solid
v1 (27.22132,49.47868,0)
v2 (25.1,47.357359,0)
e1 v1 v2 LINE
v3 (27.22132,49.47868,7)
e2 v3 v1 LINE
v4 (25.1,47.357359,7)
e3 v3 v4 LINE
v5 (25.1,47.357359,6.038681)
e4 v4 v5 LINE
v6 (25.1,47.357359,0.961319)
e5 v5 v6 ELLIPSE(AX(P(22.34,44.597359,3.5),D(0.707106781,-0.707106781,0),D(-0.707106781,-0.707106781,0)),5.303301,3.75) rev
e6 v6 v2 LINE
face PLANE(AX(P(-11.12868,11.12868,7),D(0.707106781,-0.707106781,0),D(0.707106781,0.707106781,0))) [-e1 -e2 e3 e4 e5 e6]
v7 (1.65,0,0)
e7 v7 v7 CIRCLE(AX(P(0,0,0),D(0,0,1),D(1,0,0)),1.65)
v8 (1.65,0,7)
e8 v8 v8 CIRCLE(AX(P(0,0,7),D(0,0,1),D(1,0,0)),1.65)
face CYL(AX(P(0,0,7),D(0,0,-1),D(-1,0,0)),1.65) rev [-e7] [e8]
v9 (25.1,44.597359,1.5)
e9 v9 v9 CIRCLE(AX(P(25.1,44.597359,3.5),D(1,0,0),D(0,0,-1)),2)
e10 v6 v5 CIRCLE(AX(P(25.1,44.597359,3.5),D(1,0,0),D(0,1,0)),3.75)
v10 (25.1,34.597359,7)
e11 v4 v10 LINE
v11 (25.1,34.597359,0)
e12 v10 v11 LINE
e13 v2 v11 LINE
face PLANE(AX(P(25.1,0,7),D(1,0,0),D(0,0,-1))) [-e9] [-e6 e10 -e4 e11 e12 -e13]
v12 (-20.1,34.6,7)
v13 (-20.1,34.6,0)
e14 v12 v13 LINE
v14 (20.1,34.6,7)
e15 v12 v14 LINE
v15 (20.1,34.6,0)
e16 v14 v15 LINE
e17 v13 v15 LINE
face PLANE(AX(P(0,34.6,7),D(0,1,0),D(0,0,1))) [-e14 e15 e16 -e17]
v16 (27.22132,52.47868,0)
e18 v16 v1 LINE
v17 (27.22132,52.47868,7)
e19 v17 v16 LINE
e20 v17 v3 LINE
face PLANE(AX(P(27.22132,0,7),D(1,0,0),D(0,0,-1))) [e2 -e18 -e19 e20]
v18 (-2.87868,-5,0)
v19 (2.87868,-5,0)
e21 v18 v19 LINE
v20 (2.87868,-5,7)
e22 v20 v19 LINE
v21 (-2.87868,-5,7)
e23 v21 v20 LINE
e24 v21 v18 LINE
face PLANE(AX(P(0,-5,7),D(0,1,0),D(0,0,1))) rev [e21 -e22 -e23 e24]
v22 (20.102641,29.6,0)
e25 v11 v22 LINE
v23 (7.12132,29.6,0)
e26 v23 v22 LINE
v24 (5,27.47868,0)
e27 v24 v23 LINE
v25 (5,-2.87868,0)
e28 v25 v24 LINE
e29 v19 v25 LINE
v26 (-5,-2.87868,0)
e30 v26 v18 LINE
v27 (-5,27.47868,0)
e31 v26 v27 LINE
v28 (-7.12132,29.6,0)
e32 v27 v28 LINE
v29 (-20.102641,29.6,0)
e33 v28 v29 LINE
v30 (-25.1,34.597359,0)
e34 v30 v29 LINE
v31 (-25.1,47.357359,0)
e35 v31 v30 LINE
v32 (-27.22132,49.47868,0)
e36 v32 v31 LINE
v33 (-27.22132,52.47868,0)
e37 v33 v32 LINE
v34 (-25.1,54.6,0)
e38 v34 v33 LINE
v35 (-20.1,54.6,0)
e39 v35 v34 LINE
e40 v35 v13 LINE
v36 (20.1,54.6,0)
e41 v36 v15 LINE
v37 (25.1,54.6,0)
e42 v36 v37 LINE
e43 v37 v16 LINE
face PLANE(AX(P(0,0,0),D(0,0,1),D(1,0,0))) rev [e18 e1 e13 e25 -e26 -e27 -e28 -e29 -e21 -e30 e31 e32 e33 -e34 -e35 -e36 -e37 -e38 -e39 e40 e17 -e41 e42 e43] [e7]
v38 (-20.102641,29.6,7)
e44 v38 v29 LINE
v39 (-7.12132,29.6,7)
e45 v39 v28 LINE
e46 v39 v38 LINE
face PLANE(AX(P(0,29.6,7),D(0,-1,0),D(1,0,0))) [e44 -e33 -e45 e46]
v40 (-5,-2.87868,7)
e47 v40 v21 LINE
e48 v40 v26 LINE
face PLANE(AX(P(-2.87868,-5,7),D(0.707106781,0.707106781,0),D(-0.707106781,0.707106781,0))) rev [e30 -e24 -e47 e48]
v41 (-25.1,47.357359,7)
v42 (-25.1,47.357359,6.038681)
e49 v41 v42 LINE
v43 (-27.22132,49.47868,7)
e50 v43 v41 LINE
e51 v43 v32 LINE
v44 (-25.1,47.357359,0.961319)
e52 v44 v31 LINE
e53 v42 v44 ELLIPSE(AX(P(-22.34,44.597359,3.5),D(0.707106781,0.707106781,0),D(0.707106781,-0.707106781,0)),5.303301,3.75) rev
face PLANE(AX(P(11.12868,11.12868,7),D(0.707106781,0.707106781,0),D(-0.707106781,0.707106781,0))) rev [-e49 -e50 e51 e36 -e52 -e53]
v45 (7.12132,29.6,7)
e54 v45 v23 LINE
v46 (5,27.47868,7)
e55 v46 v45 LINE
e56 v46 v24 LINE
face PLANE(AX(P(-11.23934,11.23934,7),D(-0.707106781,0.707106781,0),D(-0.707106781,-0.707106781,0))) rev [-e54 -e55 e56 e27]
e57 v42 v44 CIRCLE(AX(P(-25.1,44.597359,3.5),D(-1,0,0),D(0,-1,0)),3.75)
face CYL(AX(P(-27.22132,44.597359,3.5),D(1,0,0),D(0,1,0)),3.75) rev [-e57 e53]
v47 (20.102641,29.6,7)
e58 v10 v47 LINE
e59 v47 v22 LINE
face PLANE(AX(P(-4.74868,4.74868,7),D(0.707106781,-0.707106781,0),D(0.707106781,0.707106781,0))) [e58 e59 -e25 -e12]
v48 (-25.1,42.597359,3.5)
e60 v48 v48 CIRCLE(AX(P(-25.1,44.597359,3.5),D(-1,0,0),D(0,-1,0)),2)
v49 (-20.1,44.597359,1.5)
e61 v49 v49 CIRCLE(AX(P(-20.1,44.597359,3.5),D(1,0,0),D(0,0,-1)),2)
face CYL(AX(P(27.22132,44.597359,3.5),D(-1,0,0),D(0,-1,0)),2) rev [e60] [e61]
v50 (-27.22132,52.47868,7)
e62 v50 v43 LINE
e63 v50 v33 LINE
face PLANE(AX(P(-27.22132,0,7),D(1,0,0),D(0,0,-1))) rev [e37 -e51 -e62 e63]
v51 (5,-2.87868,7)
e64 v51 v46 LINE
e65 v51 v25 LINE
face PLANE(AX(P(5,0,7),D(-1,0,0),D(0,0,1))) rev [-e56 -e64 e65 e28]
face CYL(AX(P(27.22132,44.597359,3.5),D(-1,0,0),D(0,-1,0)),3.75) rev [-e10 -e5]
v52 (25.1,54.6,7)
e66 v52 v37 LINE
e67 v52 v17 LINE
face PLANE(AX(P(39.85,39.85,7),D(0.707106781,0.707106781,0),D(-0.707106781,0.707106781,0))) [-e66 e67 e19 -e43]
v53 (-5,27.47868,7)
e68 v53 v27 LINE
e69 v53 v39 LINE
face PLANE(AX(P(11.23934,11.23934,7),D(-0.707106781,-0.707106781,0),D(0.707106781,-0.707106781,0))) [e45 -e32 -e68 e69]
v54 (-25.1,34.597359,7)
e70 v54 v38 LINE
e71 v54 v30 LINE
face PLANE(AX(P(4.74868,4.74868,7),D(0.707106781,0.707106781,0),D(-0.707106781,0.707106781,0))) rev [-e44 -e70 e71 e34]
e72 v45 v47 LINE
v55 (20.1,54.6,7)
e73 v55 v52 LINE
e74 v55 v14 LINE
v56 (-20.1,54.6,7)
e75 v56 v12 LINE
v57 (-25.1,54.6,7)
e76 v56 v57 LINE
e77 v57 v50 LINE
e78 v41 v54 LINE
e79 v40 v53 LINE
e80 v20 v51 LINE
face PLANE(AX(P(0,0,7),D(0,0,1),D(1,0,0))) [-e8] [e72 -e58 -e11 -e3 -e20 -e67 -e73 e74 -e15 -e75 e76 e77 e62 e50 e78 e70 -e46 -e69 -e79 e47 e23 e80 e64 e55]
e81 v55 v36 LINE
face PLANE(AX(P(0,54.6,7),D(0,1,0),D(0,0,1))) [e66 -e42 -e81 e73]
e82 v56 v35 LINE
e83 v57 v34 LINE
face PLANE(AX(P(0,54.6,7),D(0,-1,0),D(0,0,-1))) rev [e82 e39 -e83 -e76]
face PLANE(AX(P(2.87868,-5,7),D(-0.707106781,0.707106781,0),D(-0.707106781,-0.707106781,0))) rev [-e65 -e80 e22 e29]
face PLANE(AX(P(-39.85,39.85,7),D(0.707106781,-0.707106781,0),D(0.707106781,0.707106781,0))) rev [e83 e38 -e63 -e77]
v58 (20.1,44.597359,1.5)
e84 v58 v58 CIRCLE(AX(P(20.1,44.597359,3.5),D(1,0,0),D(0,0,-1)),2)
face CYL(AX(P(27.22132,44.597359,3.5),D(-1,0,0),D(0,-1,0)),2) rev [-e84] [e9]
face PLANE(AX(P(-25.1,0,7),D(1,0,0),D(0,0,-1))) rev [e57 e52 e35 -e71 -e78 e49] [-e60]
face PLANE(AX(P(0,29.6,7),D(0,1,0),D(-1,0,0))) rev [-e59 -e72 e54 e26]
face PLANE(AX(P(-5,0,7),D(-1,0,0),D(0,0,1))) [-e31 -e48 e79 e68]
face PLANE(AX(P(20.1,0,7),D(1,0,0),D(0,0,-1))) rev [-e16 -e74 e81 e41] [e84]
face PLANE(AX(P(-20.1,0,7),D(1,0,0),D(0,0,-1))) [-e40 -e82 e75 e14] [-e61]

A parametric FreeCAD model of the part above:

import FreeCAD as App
import Part
import Sketcher
from FreeCAD import Vector

doc = App.newDocument("Part")
params = doc.addObject("Spreadsheet::Sheet", "Params")
for row, (alias, value) in enumerate([
    ("sketch1_diameter", "3.3 mm"),
    ("sketch1_width", "10 mm"),
    ("sketch1_width2", "5 mm"),
    ("sketch1_height", "3 mm"),
    ("sketch1_height2", "20 mm"),
    ("pad1_length", "7 mm"),
    ("sketch2_length", "3 mm"),
    ("sketch3_diameter", "4 mm"),
    ("sketch4_diameter", "7.5 mm"),
    ("sketch5_diameter", "7.5 mm"),
], start=1):
    params.set(f"A{row}", alias)
    params.set(f"B{row}", "=" + value)
    params.setAlias(f"B{row}", alias)

body = doc.addObject("PartDesign::Body", "Body")

sketch1 = body.newObject("Sketcher::SketchObject", "Sketch")
sketch1.AttachmentSupport = (doc.getObject("XY_Plane"), [""])
sketch1.MapMode = "FlatFace"
sketch1.addGeometry([
    Part.LineSegment(Vector(-5, 27.5, 0), Vector(-5, -5, 0)),
    Part.LineSegment(Vector(-5, -5, 0), Vector(5, -5, 0)),
    Part.LineSegment(Vector(5, -5, 0), Vector(5, 27.5, 0)),
    Part.LineSegment(Vector(5, 27.5, 0), Vector(7.1, 29.6, 0)),
    Part.LineSegment(Vector(7.1, 29.6, 0), Vector(20.1, 29.6, 0)),
    Part.LineSegment(Vector(20.1, 29.6, 0), Vector(25.1, 34.6, 0)),
    Part.LineSegment(Vector(25.1, 34.6, 0), Vector(25.1, 47.4, 0)),
    Part.LineSegment(Vector(25.1, 47.4, 0), Vector(27.2, 49.5, 0)),
    Part.LineSegment(Vector(27.2, 49.5, 0), Vector(27.2, 52.5, 0)),
    Part.LineSegment(Vector(27.2, 52.5, 0), Vector(25.1, 54.6, 0)),
    Part.LineSegment(Vector(25.1, 54.6, 0), Vector(20.1, 54.6, 0)),
    Part.LineSegment(Vector(20.1, 54.6, 0), Vector(20.1, 34.6, 0)),
    Part.LineSegment(Vector(20.1, 34.6, 0), Vector(-20.1, 34.6, 0)),
    Part.LineSegment(Vector(-20.1, 34.6, 0), Vector(-20.1, 54.6, 0)),
    Part.LineSegment(Vector(-20.1, 54.6, 0), Vector(-25.1, 54.6, 0)),
    Part.LineSegment(Vector(-25.1, 54.6, 0), Vector(-27.2, 52.5, 0)),
    Part.LineSegment(Vector(-27.2, 52.5, 0), Vector(-27.2, 49.5, 0)),
    Part.LineSegment(Vector(-27.2, 49.5, 0), Vector(-25.1, 47.4, 0)),
    Part.LineSegment(Vector(-25.1, 47.4, 0), Vector(-25.1, 34.6, 0)),
    Part.LineSegment(Vector(-25.1, 34.6, 0), Vector(-20.1, 29.6, 0)),
    Part.LineSegment(Vector(-20.1, 29.6, 0), Vector(-7.1, 29.6, 0)),
    Part.LineSegment(Vector(-7.1, 29.6, 0), Vector(-5, 27.5, 0)),
    Part.Circle(Vector(0, 0, 0), Vector(0, 0, 1), 1.6),
], False)
sketch1.addConstraint([
    Sketcher.Constraint("Coincident", 0, 2, 1, 1),
    Sketcher.Constraint("Coincident", 1, 2, 2, 1),
    Sketcher.Constraint("Coincident", 2, 2, 3, 1),
    Sketcher.Constraint("Coincident", 3, 2, 4, 1),
    Sketcher.Constraint("Coincident", 4, 2, 5, 1),
    Sketcher.Constraint("Coincident", 5, 2, 6, 1),
    Sketcher.Constraint("Coincident", 6, 2, 7, 1),
    Sketcher.Constraint("Coincident", 7, 2, 8, 1),
    Sketcher.Constraint("Coincident", 8, 2, 9, 1),
    Sketcher.Constraint("Coincident", 9, 2, 10, 1),
    Sketcher.Constraint("Coincident", 10, 2, 11, 1),
    Sketcher.Constraint("Coincident", 11, 2, 12, 1),
    Sketcher.Constraint("Coincident", 12, 2, 13, 1),
    Sketcher.Constraint("Coincident", 13, 2, 14, 1),
    Sketcher.Constraint("Coincident", 14, 2, 15, 1),
    Sketcher.Constraint("Coincident", 15, 2, 16, 1),
    Sketcher.Constraint("Coincident", 16, 2, 17, 1),
    Sketcher.Constraint("Coincident", 17, 2, 18, 1),
    Sketcher.Constraint("Coincident", 18, 2, 19, 1),
    Sketcher.Constraint("Coincident", 19, 2, 20, 1),
    Sketcher.Constraint("Coincident", 20, 2, 21, 1),
    Sketcher.Constraint("Coincident", 21, 2, 0, 1),
    Sketcher.Constraint("Vertical", 0),
    Sketcher.Constraint("Horizontal", 1),
    Sketcher.Constraint("Vertical", 2),
    Sketcher.Constraint("Horizontal", 4),
    Sketcher.Constraint("Vertical", 6),
    Sketcher.Constraint("Vertical", 8),
    Sketcher.Constraint("Horizontal", 10),
    Sketcher.Constraint("Vertical", 11),
    Sketcher.Constraint("Horizontal", 12),
    Sketcher.Constraint("Vertical", 13),
    Sketcher.Constraint("Horizontal", 14),
    Sketcher.Constraint("Vertical", 16),
    Sketcher.Constraint("Vertical", 18),
    Sketcher.Constraint("Horizontal", 20),
    Sketcher.Constraint("Coincident", 22, 3, -1, 1),
    Sketcher.Constraint("Symmetric", 10, 2, 13, 2, -2),
    Sketcher.Constraint("Symmetric", 8, 2, 15, 2, -2),
    Sketcher.Constraint("Symmetric", 6, 2, 17, 2, -2),
    Sketcher.Constraint("Symmetric", 4, 2, 19, 2, -2),
    Sketcher.Constraint("Symmetric", 2, 2, 21, 2, -2),
    Sketcher.Constraint("Parallel", 3, 5),
    Sketcher.Constraint("Parallel", 5, 7),
    Sketcher.Constraint("Perpendicular", 7, 9),
    Sketcher.Constraint("Perpendicular", 9, 15),
    Sketcher.Constraint("Perpendicular", 15, 17),
    Sketcher.Constraint("Parallel", 17, 19),
    Sketcher.Constraint("Parallel", 19, 21),
    Sketcher.Constraint("Horizontal", 7, 2, 16, 2),
    Sketcher.Constraint("Vertical", 6, 2, 9, 2),
    Sketcher.Constraint("Equal", 3, 7),
    Sketcher.Constraint("Diameter", 22, 3.3),
    Sketcher.Constraint("DistanceX", 1, 1, 1, 2, 10.0),
    Sketcher.Constraint("DistanceX", 10, 2, 10, 1, 5.0),
    Sketcher.Constraint("DistanceY", 8, 1, 8, 2, 3.0),
    Sketcher.Constraint("DistanceY", 11, 2, 11, 1, 20.0),
    Sketcher.Constraint("Distance", 3, 3.0),
    Sketcher.Constraint("DistanceX", 12, 2, 12, 1, 40.2),
    Sketcher.Constraint("DistanceY", 0, 2, -1, 1, 5.0),
    Sketcher.Constraint("DistanceY", 2, 2, 7, 2, 22.0),
    Sketcher.Constraint("DistanceY", 6, 1, 6, 2, 12.76),
    Sketcher.Constraint("DistanceY", -1, 1, 3, 2, 29.6),
])
sketch1.setExpression("Constraints[52]", "Params.sketch1_diameter")
sketch1.setExpression("Constraints[53]", "Params.sketch1_width")
sketch1.setExpression("Constraints[54]", "Params.sketch1_width2")
sketch1.setExpression("Constraints[55]", "Params.sketch1_height")
sketch1.setExpression("Constraints[56]", "Params.sketch1_height2")
pad1 = body.newObject("PartDesign::Pad", "Pad")
pad1.Profile = sketch1
pad1.setExpression("Length", "Params.pad1_length")

sketch2 = body.newObject("Sketcher::SketchObject", "Sketch001")
sketch2.AttachmentSupport = (doc.getObject("XY_Plane"), [""])
sketch2.MapMode = "FlatFace"
sketch2.addGeometry([
    Part.LineSegment(Vector(5, -5, 0), Vector(2.9, -5, 0)),
    Part.LineSegment(Vector(2.9, -5, 0), Vector(5, -2.9, 0)),
    Part.LineSegment(Vector(5, -2.9, 0), Vector(5, -5, 0)),
    Part.LineSegment(Vector(-5, -2.9, 0), Vector(-2.9, -5, 0)),
    Part.LineSegment(Vector(-2.9, -5, 0), Vector(-5, -5, 0)),
    Part.LineSegment(Vector(-5, -5, 0), Vector(-5, -2.9, 0)),
], False)
sketch2.addConstraint([
    Sketcher.Constraint("Coincident", 0, 2, 1, 1),
    Sketcher.Constraint("Coincident", 1, 2, 2, 1),
    Sketcher.Constraint("Coincident", 2, 2, 0, 1),
    Sketcher.Constraint("Coincident", 3, 2, 4, 1),
    Sketcher.Constraint("Coincident", 4, 2, 5, 1),
    Sketcher.Constraint("Coincident", 5, 2, 3, 1),
    Sketcher.Constraint("Horizontal", 0),
    Sketcher.Constraint("Vertical", 2),
    Sketcher.Constraint("Horizontal", 4),
    Sketcher.Constraint("Vertical", 5),
    Sketcher.Constraint("Symmetric", 0, 2, 3, 2, -2),
    Sketcher.Constraint("Symmetric", 1, 2, 5, 2, -2),
    Sketcher.Constraint("Perpendicular", 1, 3),
    Sketcher.Constraint("Distance", 1, 3.0),
    Sketcher.Constraint("DistanceY", 0, 2, -1, 1, 5.0),
    Sketcher.Constraint("DistanceX", -1, 1, 1, 2, 5.0),
])
sketch2.setExpression("Constraints[13]", "Params.sketch2_length")
pocket1 = body.newObject("PartDesign::Pocket", "Pocket")
pocket1.Profile = sketch2
pocket1.Type = "ThroughAll"
pocket1.Reversed = True

sketch3 = body.newObject("Sketcher::SketchObject", "Sketch002")
sketch3.AttachmentSupport = (doc.getObject("YZ_Plane"), [""])
sketch3.MapMode = "FlatFace"
sketch3.AttachmentOffset = App.Placement(Vector(0, 0, -25.1), App.Rotation())
sketch3.addGeometry(Part.Circle(Vector(44.6, 3.5, 0), Vector(0, 0, 1), 2), False)
sketch3.addConstraint([
    Sketcher.Constraint("Diameter", 0, 4.0),
    Sketcher.Constraint("DistanceY", -1, 1, 0, 3, 3.5),
    Sketcher.Constraint("DistanceX", -1, 1, 0, 3, 44.597359),
])
sketch3.setExpression("Constraints[0]", "Params.sketch3_diameter")
pocket2 = body.newObject("PartDesign::Pocket", "Pocket001")
pocket2.Profile = sketch3
pocket2.Type = "ThroughAll"
pocket2.Reversed = True

sketch4 = body.newObject("Sketcher::SketchObject", "Sketch003")
sketch4.AttachmentSupport = (doc.getObject("YZ_Plane"), [""])
sketch4.MapMode = "FlatFace"
sketch4.AttachmentOffset = App.Placement(Vector(0, 0, -25.1), App.Rotation())
sketch4.addGeometry(Part.Circle(Vector(44.6, 3.5, 0), Vector(0, 0, 1), 3.8), False)
sketch4.addConstraint([
    Sketcher.Constraint("Diameter", 0, 7.5),
    Sketcher.Constraint("DistanceY", -1, 1, 0, 3, 3.5),
    Sketcher.Constraint("DistanceX", -1, 1, 0, 3, 44.597359),
])
sketch4.setExpression("Constraints[0]", "Params.sketch4_diameter")
pocket3 = body.newObject("PartDesign::Pocket", "Pocket002")
pocket3.Profile = sketch4
pocket3.Type = "ThroughAll"

sketch5 = body.newObject("Sketcher::SketchObject", "Sketch004")
sketch5.AttachmentSupport = (doc.getObject("YZ_Plane"), [""])
sketch5.MapMode = "FlatFace"
sketch5.AttachmentOffset = App.Placement(Vector(0, 0, 25.1), App.Rotation())
sketch5.addGeometry(Part.Circle(Vector(44.6, 3.5, 0), Vector(0, 0, 1), 3.8), False)
sketch5.addConstraint([
    Sketcher.Constraint("Diameter", 0, 7.5),
    Sketcher.Constraint("DistanceY", -1, 1, 0, 3, 3.5),
    Sketcher.Constraint("DistanceX", -1, 1, 0, 3, 44.597359),
])
sketch5.setExpression("Constraints[0]", "Params.sketch5_diameter")
pocket4 = body.newObject("PartDesign::Pocket", "Pocket003")
pocket4.Profile = sketch5
pocket4.Type = "ThroughAll"
pocket4.Reversed = True

doc.recompute()
